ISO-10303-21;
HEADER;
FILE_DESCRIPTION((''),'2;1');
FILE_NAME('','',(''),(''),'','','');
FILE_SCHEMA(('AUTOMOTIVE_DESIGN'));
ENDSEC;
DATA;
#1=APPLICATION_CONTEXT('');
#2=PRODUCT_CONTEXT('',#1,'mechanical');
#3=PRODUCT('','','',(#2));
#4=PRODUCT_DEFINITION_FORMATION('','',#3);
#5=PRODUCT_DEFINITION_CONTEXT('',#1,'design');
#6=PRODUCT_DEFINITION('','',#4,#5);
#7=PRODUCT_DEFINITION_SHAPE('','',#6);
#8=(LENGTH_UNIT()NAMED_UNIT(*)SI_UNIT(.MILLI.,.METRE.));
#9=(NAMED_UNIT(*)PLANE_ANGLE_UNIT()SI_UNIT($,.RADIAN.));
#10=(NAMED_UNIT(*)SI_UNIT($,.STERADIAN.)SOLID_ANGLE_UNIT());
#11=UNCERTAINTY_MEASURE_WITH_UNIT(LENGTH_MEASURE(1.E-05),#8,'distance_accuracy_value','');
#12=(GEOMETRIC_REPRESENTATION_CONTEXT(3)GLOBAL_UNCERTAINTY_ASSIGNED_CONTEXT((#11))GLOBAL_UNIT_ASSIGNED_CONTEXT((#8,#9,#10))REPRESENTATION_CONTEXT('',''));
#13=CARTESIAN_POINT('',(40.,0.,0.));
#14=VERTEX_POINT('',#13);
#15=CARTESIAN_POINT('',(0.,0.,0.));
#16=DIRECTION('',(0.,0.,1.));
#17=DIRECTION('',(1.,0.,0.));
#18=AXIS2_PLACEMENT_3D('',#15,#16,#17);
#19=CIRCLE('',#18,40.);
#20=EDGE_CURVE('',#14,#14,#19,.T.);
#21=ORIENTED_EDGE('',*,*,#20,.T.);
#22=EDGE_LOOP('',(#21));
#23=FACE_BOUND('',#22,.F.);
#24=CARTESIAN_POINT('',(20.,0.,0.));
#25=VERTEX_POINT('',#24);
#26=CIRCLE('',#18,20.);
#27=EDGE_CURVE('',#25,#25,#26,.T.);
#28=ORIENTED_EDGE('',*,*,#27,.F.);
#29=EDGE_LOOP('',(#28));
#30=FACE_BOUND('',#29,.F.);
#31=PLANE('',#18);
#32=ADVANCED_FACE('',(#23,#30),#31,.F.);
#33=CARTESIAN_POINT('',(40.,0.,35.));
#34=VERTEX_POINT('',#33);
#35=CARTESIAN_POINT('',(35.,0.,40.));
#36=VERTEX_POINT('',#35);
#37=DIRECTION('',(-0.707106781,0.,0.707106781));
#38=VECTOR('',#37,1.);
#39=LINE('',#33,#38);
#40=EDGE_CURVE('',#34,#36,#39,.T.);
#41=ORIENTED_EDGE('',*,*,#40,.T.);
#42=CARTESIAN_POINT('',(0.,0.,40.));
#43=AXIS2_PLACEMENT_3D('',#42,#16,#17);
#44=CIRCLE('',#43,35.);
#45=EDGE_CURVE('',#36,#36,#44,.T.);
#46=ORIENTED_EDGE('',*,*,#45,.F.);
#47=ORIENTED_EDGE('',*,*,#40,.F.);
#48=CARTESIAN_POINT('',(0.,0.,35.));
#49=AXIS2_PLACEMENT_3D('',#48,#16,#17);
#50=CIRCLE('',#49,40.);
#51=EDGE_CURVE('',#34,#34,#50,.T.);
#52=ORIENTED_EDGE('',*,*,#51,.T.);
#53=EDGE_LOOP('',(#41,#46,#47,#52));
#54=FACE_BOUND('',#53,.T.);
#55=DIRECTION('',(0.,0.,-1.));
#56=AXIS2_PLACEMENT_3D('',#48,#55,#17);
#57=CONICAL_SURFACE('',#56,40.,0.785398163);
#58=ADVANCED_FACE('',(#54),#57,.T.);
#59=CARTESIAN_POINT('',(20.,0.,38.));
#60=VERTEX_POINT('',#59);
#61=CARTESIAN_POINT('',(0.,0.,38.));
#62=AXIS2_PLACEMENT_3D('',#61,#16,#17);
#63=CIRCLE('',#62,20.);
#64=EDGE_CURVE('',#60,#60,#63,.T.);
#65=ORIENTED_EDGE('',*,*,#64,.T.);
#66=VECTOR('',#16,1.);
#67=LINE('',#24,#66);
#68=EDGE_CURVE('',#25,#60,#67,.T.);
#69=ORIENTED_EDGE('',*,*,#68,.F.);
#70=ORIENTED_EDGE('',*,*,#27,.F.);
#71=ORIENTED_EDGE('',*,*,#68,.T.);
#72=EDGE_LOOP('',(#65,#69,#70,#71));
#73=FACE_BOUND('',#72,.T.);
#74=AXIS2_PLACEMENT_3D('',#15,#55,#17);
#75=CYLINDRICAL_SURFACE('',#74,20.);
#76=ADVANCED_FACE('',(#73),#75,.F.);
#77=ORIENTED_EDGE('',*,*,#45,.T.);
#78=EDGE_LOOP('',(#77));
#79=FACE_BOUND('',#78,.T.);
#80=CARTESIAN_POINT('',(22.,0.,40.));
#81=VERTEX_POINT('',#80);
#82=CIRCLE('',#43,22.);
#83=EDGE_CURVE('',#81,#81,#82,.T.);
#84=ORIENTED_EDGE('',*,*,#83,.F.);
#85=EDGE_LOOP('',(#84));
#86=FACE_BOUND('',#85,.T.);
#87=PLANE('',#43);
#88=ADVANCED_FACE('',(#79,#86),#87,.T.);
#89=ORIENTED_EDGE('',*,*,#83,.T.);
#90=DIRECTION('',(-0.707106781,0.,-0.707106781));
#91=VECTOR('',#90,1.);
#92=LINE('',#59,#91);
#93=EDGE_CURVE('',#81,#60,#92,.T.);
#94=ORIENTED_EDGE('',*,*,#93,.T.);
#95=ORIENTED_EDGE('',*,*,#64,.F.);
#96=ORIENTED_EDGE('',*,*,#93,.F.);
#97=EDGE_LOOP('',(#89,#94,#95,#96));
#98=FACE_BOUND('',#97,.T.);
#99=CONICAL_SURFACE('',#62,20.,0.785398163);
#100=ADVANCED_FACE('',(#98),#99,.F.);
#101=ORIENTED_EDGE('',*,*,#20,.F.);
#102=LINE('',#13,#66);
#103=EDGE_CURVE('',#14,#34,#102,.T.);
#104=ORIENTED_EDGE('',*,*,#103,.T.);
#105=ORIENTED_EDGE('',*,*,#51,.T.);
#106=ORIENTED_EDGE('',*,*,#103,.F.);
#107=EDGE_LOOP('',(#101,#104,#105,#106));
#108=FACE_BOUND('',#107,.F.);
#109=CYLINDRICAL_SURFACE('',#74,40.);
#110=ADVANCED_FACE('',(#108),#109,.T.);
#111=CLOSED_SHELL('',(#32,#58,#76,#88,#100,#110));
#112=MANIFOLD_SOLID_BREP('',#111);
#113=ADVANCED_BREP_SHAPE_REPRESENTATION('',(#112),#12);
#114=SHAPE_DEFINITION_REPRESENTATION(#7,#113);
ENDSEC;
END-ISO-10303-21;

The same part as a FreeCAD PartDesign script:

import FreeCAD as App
import Part
import Sketcher

V = App.Vector


def edges_at(feature, points):
    """Names of the edges that pass closest to the given points."""
    edges = feature.Shape.Edges
    near = lambda p: min(range(len(edges)), key=lambda i: edges[i].distToShape(Part.Vertex(*p))[0])
    return sorted({f"Edge{near(p) + 1}" for p in points})

doc = App.newDocument("Part")
body = doc.addObject("PartDesign::Body", "Body")

# Sketch on XY plane
sketch1 = body.newObject("Sketcher::SketchObject", "Sketch")
sketch1.AttachmentSupport = (doc.getObject("XY_Plane"), [""])
sketch1.MapMode = "FlatFace"
sketch1.addGeometry([
    Part.Circle(V(0, 0, 0), V(0, 0, 1), 40),
    Part.Circle(V(0, 0, 0), V(0, 0, 1), 20),
], False)
sketch1.addConstraint([
    Sketcher.Constraint("Coincident", 0, 3, -1, 1),
    Sketcher.Constraint("Coincident", 1, 3, -1, 1),
    Sketcher.Constraint("Diameter", 0, 80.0),
    Sketcher.Constraint("Diameter", 1, 40.0),
])
pad1 = body.newObject("PartDesign::Pad", "Pad")
pad1.Profile = sketch1
pad1.Length = 40
doc.recompute()

chamfer = body.newObject("PartDesign::Chamfer", "Chamfer")
chamfer.Base = (pad1, edges_at(pad1, [(-40, 0, 40)]))
chamfer.Size = 5
doc.recompute()

chamfer2 = body.newObject("PartDesign::Chamfer", "Chamfer001")
chamfer2.Base = (chamfer, edges_at(chamfer, [(-20, 0, 40)]))
chamfer2.Size = 2

doc.recompute()
